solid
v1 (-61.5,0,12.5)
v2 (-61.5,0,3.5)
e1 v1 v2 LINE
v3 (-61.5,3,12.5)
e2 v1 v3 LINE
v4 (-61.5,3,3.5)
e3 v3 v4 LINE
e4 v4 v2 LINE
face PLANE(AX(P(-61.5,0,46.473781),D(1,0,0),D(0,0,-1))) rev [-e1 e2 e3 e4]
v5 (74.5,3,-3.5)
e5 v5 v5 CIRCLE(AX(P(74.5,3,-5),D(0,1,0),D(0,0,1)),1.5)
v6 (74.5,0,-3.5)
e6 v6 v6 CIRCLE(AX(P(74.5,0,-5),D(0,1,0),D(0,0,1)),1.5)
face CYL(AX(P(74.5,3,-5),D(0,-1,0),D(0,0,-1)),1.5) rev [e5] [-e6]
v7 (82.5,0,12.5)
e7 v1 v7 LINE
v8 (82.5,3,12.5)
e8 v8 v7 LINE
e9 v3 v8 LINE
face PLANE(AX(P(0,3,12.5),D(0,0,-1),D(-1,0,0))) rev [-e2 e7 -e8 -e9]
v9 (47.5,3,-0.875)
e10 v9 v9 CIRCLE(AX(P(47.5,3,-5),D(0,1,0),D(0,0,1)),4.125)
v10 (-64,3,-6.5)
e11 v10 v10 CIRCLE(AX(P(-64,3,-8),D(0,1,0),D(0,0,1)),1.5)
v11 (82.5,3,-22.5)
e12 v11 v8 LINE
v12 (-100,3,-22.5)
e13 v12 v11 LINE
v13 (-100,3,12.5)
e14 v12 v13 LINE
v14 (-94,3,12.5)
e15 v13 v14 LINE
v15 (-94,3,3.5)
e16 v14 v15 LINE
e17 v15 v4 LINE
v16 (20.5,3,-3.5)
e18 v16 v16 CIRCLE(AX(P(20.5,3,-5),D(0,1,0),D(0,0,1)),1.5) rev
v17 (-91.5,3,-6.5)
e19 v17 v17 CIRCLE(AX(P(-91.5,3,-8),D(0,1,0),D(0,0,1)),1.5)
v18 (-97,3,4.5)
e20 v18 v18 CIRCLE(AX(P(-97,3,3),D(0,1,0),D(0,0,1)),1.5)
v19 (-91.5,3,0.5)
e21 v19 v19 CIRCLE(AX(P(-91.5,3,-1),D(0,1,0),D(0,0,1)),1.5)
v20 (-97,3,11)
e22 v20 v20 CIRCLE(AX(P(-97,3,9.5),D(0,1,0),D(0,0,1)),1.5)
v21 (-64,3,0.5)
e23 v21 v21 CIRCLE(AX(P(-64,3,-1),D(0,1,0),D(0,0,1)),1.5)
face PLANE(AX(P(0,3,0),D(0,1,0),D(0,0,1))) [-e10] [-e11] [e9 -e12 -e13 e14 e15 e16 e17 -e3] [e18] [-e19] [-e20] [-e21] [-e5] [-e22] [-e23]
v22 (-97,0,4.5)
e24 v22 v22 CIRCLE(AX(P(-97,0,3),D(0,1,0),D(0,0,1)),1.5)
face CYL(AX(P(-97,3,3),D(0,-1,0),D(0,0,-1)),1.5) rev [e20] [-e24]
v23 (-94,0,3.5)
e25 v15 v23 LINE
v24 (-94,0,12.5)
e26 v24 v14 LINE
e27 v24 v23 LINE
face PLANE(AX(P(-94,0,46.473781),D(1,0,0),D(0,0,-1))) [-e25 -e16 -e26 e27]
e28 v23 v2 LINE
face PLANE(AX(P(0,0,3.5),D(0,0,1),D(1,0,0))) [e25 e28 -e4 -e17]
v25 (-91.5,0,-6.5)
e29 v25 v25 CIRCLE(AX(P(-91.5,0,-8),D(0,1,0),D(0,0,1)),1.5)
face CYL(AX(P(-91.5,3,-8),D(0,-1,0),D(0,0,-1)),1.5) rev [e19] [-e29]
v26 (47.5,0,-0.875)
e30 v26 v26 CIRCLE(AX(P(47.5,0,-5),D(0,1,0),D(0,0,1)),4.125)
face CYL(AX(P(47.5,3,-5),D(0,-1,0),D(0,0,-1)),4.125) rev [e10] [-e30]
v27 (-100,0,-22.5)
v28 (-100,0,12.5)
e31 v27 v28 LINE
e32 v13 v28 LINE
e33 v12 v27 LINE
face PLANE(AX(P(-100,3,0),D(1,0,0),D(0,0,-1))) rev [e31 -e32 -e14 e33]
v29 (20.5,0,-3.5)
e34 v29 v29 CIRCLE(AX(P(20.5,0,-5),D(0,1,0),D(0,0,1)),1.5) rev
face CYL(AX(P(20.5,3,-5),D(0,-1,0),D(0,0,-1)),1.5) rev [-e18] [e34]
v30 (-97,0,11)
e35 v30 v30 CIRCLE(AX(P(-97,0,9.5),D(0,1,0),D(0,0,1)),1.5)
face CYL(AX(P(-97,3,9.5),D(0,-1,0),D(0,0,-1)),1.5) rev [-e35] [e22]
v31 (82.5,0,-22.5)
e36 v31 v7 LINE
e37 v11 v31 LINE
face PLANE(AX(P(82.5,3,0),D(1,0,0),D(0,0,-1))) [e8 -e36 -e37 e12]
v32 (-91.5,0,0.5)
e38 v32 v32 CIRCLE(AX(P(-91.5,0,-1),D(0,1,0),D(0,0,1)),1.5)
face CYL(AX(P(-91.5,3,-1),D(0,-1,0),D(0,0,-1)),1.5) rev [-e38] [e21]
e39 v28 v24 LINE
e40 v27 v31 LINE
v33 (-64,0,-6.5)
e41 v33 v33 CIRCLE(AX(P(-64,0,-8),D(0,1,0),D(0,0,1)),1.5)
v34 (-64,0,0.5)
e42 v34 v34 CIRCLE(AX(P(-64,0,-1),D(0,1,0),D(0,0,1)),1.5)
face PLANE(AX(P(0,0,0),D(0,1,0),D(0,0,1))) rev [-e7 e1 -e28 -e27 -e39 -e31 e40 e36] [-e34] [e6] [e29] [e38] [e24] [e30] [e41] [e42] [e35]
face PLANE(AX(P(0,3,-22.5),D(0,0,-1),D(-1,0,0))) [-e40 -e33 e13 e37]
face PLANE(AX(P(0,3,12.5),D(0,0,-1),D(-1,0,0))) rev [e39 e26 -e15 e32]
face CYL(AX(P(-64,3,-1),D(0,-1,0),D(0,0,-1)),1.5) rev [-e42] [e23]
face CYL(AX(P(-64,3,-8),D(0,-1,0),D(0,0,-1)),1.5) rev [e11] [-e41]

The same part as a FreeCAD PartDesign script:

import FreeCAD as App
import Part
import Sketcher

V = App.Vector
Q = App.Units.Quantity

doc = App.newDocument("Part")
body = doc.addObject("PartDesign::Body", "Body")

# Sketch on XZ plane
sketch1 = doc.addObject("Sketcher::SketchObject", "Sketch")
body.addObject(sketch1)
sketch1.AttachmentSupport = (doc.XZ_Plane, [""])
sketch1.MapMode = "FlatFace"
sketch1.addGeometry([
    Part.LineSegment(V(-100, -22.5, 0), V(-100, 12.5, 0)),  # 0
    Part.LineSegment(V(-100, 12.5, 0), V(82.5, 12.5, 0)),  # 1
    Part.LineSegment(V(82.5, 12.5, 0), V(82.5, -22.5, 0)),  # 2
    Part.LineSegment(V(82.5, -22.5, 0), V(-100, -22.5, 0)),  # 3
    Part.Circle(V(-97, 9.5, 0), V(0, 0, 1), 1.5),  # 4
    Part.Circle(V(-97, 3, 0), V(0, 0, 1), 1.5),  # 5
    Part.Circle(V(-91.5, -1, 0), V(0, 0, 1), 1.5),  # 6
    Part.Circle(V(-64, -1, 0), V(0, 0, 1), 1.5),  # 7
    Part.Circle(V(-91.5, -8, 0), V(0, 0, 1), 1.5),  # 8
    Part.Circle(V(-64, -8, 0), V(0, 0, 1), 1.5),  # 9
    Part.Circle(V(20.5, -5, 0), V(0, 0, 1), 1.5),  # 10
    Part.Circle(V(47.5, -5, 0), V(0, 0, 1), 4.1),  # 11
    Part.Circle(V(74.5, -5, 0), V(0, 0, 1), 1.5),  # 12
], False)
sketch1.addConstraint([
    Sketcher.Constraint("Coincident", 0, 2, 1, 1),
    Sketcher.Constraint("Coincident", 1, 2, 2, 1),
    Sketcher.Constraint("Coincident", 2, 2, 3, 1),
    Sketcher.Constraint("Coincident", 3, 2, 0, 1),
    Sketcher.Constraint("Vertical", 0),
    Sketcher.Constraint("Horizontal", 1),
    Sketcher.Constraint("Vertical", 2),
    Sketcher.Constraint("Horizontal", 3),
    Sketcher.Constraint("Equal", 4, 5),
    Sketcher.Constraint("Equal", 5, 6),
    Sketcher.Constraint("Equal", 6, 7),
    Sketcher.Constraint("Equal", 7, 8),
    Sketcher.Constraint("Equal", 8, 9),
    Sketcher.Constraint("Equal", 9, 10),
    Sketcher.Constraint("Equal", 10, 12),
    Sketcher.Constraint("Horizontal", 6, 3, 7, 3),
    Sketcher.Constraint("Horizontal", 8, 3, 9, 3),
    Sketcher.Constraint("Horizontal", 10, 3, 11, 3),
    Sketcher.Constraint("Horizontal", 11, 3, 12, 3),
    Sketcher.Constraint("Vertical", 4, 3, 5, 3),
    Sketcher.Constraint("Vertical", 6, 3, 8, 3),
    Sketcher.Constraint("Vertical", 7, 3, 9, 3),
    Sketcher.Constraint("Diameter", 4, Q("3 mm")),
    Sketcher.Constraint("Diameter", 11, Q("8.25 mm")),
    Sketcher.Constraint("DistanceY", 0, 1, 0, 2, Q("35 mm")),
    Sketcher.Constraint("DistanceX", 1, 1, 1, 2, Q("182.5 mm")),
    Sketcher.Constraint("DistanceX", 4, 3, -1, 1, Q("97 mm")),
    Sketcher.Constraint("DistanceY", -1, 1, 5, 3, Q("3 mm")),
    Sketcher.Constraint("DistanceY", 6, 3, -1, 1, Q("1 mm")),
    Sketcher.Constraint("DistanceX", 7, 3, -1, 1, Q("64 mm")),
    Sketcher.Constraint("DistanceY", 8, 3, -1, 1, Q("8 mm")),
    Sketcher.Constraint("DistanceY", 10, 3, -1, 1, Q("5 mm")),
    Sketcher.Constraint("DistanceX", 0, 2, -1, 1, Q("100 mm")),
    Sketcher.Constraint("DistanceX", 8, 3, 10, 3, Q("112 mm")),
    Sketcher.Constraint("DistanceX", 10, 3, 11, 3, Q("27 mm")),
    Sketcher.Constraint("DistanceX", 11, 3, 12, 3, Q("27 mm")),
    Sketcher.Constraint("DistanceY", 4, 3, 0, 2, Q("3 mm")),
    Sketcher.Constraint("DistanceX", 12, 3, 1, 2, Q("8 mm")),
    Sketcher.Constraint("DistanceY", -1, 1, 4, 3, Q("9.5 mm")),
])
pad1 = doc.addObject("PartDesign::Pad", "Pad")
body.addObject(pad1)
pad1.Profile = sketch1
pad1.Length = 3
pad1.Reversed = True

# Sketch on XY plane
sketch2 = doc.addObject("Sketcher::SketchObject", "Sketch001")
body.addObject(sketch2)
sketch2.AttachmentSupport = (doc.XY_Plane, [""])
sketch2.MapMode = "FlatFace"
sketch2.AttachmentOffset = App.Placement(V(0, 0, 3.5), App.Rotation())
sketch2.addGeometry([
    Part.LineSegment(V(-62, -3, 0), V(-62, 6, 0)),
    Part.LineSegment(V(-62, 6, 0), V(-94, 6, 0)),
    Part.LineSegment(V(-94, 6, 0), V(-94, -3, 0)),
    Part.LineSegment(V(-94, -3, 0), V(-62, -3, 0)),
], False)
sketch2.addConstraint([
    Sketcher.Constraint("Coincident", 0, 2, 1, 1),
    Sketcher.Constraint("Coincident", 1, 2, 2, 1),
    Sketcher.Constraint("Coincident", 2, 2, 3, 1),
    Sketcher.Constraint("Coincident", 3, 2, 0, 1),
    Sketcher.Constraint("Vertical", 0),
    Sketcher.Constraint("Horizontal", 1),
    Sketcher.Constraint("Vertical", 2),
    Sketcher.Constraint("Horizontal", 3),
    Sketcher.Constraint("DistanceX", 1, 2, 1, 1, Q("32.5 mm")),
    Sketcher.Constraint("DistanceX", 1, 2, -1, 1, Q("94 mm")),
    Sketcher.Constraint("DistanceY", 0, 1, 0, 2, Q("9.897867 mm")),
    Sketcher.Constraint("DistanceY", -1, 1, 0, 2, Q("6.499791 mm")),
])
pocket1 = doc.addObject("PartDesign::Pocket", "Pocket")
body.addObject(pocket1)
pocket1.Profile = sketch2
pocket1.Length = 9
pocket1.Reversed = True

doc.recompute()
